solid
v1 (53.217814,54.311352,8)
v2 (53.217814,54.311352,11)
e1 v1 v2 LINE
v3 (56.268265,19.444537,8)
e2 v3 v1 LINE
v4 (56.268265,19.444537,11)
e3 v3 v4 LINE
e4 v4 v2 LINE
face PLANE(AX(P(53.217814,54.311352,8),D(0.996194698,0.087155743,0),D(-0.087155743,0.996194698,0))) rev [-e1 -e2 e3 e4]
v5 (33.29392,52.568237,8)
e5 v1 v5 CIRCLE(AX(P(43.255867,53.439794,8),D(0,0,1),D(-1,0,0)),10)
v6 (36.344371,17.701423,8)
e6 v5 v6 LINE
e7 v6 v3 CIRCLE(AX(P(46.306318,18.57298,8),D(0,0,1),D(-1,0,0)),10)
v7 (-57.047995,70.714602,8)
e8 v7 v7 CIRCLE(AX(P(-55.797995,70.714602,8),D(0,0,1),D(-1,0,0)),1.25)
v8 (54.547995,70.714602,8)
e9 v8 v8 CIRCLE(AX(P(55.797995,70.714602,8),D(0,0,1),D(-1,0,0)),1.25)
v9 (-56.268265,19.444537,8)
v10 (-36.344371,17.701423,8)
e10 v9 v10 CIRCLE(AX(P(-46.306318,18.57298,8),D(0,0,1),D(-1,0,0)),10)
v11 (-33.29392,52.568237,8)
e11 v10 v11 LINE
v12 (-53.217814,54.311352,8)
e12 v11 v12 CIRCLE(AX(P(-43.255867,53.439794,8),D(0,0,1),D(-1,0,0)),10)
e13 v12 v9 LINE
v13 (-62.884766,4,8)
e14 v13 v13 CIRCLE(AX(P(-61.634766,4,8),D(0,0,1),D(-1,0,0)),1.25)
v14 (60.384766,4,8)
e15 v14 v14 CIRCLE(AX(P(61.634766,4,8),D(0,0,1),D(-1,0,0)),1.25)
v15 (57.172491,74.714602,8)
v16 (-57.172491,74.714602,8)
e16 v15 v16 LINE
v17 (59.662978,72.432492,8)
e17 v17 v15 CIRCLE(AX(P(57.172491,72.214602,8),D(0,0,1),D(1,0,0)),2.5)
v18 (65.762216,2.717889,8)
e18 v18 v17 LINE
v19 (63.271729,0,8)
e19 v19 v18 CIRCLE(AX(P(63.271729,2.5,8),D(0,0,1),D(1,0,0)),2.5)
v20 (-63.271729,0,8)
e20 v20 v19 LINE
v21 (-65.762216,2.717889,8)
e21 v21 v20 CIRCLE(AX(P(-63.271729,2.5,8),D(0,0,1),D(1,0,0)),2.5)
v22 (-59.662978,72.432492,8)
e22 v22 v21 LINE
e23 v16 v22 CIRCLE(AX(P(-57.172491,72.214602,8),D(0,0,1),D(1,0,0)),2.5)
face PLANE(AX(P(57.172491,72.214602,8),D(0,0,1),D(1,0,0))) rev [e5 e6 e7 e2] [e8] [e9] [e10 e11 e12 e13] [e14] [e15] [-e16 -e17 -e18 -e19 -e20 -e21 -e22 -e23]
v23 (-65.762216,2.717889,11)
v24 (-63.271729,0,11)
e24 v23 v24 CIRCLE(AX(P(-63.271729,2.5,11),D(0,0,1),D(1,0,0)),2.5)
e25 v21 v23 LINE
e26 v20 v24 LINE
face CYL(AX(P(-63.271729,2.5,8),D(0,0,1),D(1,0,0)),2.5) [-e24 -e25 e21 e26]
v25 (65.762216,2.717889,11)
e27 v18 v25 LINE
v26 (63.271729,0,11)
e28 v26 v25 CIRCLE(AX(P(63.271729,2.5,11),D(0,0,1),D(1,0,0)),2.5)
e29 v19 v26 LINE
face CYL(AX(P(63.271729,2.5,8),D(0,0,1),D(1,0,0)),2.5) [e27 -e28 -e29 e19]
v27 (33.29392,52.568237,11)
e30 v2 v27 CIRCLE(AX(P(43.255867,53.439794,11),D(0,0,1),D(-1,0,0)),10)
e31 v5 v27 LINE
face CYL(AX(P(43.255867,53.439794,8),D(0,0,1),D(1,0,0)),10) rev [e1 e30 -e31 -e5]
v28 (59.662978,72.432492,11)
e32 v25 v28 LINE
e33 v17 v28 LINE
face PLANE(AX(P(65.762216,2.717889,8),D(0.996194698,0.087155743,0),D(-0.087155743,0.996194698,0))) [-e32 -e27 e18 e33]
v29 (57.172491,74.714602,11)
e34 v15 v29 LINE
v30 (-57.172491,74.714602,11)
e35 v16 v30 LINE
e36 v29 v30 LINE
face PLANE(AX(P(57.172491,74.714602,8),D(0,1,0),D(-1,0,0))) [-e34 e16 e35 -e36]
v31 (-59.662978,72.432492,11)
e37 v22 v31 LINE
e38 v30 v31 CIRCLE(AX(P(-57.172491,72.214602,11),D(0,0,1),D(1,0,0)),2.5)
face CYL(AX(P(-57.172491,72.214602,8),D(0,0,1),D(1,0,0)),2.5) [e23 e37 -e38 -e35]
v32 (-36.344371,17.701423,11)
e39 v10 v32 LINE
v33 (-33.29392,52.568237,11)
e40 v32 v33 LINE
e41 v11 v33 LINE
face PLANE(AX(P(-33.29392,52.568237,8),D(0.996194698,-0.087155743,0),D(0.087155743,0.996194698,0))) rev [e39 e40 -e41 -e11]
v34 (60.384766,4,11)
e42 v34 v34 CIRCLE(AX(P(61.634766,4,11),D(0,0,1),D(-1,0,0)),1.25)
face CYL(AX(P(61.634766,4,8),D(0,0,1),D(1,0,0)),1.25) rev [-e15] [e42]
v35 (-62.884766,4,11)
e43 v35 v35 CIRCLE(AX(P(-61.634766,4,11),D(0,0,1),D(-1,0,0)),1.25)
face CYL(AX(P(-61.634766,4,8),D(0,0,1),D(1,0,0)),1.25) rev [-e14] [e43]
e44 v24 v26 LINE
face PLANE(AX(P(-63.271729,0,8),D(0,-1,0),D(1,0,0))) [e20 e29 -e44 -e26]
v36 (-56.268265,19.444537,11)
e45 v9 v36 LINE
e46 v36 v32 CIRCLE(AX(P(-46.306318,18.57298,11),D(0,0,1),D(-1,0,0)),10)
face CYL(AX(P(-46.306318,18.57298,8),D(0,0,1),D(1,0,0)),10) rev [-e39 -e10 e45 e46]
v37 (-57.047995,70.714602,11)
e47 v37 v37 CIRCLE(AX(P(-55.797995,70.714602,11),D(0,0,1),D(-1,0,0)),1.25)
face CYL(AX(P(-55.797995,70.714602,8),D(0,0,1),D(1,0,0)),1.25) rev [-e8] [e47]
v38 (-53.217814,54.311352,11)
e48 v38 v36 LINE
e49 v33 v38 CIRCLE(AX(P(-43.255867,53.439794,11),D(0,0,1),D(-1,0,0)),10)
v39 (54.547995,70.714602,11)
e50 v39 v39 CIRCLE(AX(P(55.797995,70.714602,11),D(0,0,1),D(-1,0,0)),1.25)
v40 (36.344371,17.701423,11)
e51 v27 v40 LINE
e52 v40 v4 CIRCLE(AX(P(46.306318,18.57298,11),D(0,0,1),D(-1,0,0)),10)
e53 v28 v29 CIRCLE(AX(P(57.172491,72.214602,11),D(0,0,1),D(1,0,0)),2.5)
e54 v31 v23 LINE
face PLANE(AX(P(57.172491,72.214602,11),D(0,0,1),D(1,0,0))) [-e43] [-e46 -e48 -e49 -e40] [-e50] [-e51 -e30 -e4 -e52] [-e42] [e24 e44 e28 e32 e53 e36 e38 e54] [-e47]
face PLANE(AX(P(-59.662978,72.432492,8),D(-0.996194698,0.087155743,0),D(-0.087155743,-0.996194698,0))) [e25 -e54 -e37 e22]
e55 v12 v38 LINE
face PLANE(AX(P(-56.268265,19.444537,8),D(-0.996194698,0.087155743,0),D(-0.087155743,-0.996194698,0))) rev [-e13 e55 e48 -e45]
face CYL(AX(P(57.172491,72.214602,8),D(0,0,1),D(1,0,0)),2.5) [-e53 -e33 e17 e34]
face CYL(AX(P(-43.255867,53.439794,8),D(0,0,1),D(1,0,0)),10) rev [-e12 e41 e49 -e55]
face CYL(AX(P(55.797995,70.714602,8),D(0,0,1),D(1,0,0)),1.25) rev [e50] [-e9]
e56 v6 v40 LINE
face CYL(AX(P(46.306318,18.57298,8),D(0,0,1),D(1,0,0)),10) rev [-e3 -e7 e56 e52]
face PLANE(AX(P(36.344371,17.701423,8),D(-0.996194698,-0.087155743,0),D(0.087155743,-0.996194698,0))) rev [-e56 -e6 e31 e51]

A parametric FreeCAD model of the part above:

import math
import FreeCAD as App
import Part
import Sketcher
from FreeCAD import Vector
Q = App.Units.Quantity

doc = App.newDocument("Part")
body = doc.addObject("PartDesign::Body", "Body")

# Sketch on XY plane
sketch1 = body.newObject("Sketcher::SketchObject", "Sketch")
sketch1.AttachmentSupport = (doc.getObject("XY_Plane"), [""])
sketch1.MapMode = "FlatFace"
sketch1.AttachmentOffset = App.Placement(Vector(0, 0, 11), App.Rotation())
sketch1.addGeometry([
    Part.LineSegment(Vector(57.2, 74.7, 0), Vector(-57.2, 74.7, 0)),  # 0
    Part.ArcOfCircle(Part.Circle(Vector(-57.2, 72.2, 0), Vector(0, 0, 1), 2.5), math.radians(90), math.radians(175)),  # 1
    Part.LineSegment(Vector(-59.7, 72.4, 0), Vector(-65.8, 2.7, 0)),  # 2
    Part.ArcOfCircle(Part.Circle(Vector(-63.3, 2.5, 0), Vector(0, 0, 1), 2.5), math.radians(175), math.radians(270)),  # 3
    Part.LineSegment(Vector(-63.3, 0, 0), Vector(63.3, 0, 0)),  # 4
    Part.ArcOfCircle(Part.Circle(Vector(63.3, 2.5, 0), Vector(0, 0, 1), 2.5), math.radians(-90), math.radians(5)),  # 5
    Part.LineSegment(Vector(65.8, 2.7, 0), Vector(59.7, 72.4, 0)),  # 6
    Part.ArcOfCircle(Part.Circle(Vector(57.2, 72.2, 0), Vector(0, 0, 1), 2.5), math.radians(5), math.radians(90)),  # 7
    Part.Circle(Vector(-61.6, 4, 0), Vector(0, 0, 1), 1.2),  # 8
    Part.ArcOfCircle(Part.Circle(Vector(-43.3, 53.4, 0), Vector(0, 0, 1), 10), math.radians(-5), math.radians(175)),  # 9
    Part.LineSegment(Vector(-33.3, 52.6, 0), Vector(-36.3, 17.7, 0)),  # 10
    Part.ArcOfCircle(Part.Circle(Vector(-46.3, 18.6, 0), Vector(0, 0, 1), 10), math.radians(175), math.radians(355)),  # 11
    Part.LineSegment(Vector(-56.3, 19.4, 0), Vector(-53.2, 54.3, 0)),  # 12
    Part.Circle(Vector(61.6, 4, 0), Vector(0, 0, 1), 1.2),  # 13
    Part.ArcOfCircle(Part.Circle(Vector(43.3, 53.4, 0), Vector(0, 0, 1), 10), math.radians(5), math.radians(185)),  # 14
    Part.LineSegment(Vector(53.2, 54.3, 0), Vector(56.3, 19.4, 0)),  # 15
    Part.ArcOfCircle(Part.Circle(Vector(46.3, 18.6, 0), Vector(0, 0, 1), 10), math.radians(-175), math.radians(5)),  # 16
    Part.LineSegment(Vector(36.3, 17.7, 0), Vector(33.3, 52.6, 0)),  # 17
    Part.Circle(Vector(-55.8, 70.7, 0), Vector(0, 0, 1), 1.2),  # 18
    Part.Circle(Vector(55.8, 70.7, 0), Vector(0, 0, 1), 1.2),  # 19
], False)
sketch1.addConstraint([
    Sketcher.Constraint("Tangent", 0, 2, 1, 1),
    Sketcher.Constraint("Tangent", 1, 2, 2, 1),
    Sketcher.Constraint("Tangent", 2, 2, 3, 1),
    Sketcher.Constraint("Tangent", 3, 2, 4, 1),
    Sketcher.Constraint("Tangent", 4, 2, 5, 1),
    Sketcher.Constraint("Tangent", 5, 2, 6, 1),
    Sketcher.Constraint("Tangent", 6, 2, 7, 1),
    Sketcher.Constraint("Tangent", 7, 2, 0, 1),
    Sketcher.Constraint("Tangent", 9, 1, 10, 1),
    Sketcher.Constraint("Tangent", 10, 2, 11, 2),
    Sketcher.Constraint("Tangent", 11, 1, 12, 1),
    Sketcher.Constraint("Tangent", 12, 2, 9, 2),
    Sketcher.Constraint("Tangent", 14, 1, 15, 1),
    Sketcher.Constraint("Tangent", 15, 2, 16, 2),
    Sketcher.Constraint("Tangent", 16, 1, 17, 1),
    Sketcher.Constraint("Tangent", 17, 2, 14, 2),
    Sketcher.Constraint("Horizontal", 0),
    Sketcher.Constraint("Horizontal", 4),
    Sketcher.Constraint("Equal", 1, 3),
    Sketcher.Constraint("Equal", 3, 5),
    Sketcher.Constraint("Equal", 5, 7),
    Sketcher.Constraint("Equal", 9, 11),
    Sketcher.Constraint("Equal", 8, 13),
    Sketcher.Constraint("Equal", 11, 14),
    Sketcher.Constraint("Equal", 14, 16),
    Sketcher.Constraint("Equal", 13, 18),
    Sketcher.Constraint("Equal", 18, 19),
    Sketcher.Constraint("Symmetric", 3, 2, 4, 2, -1, 1),
    Sketcher.Constraint("Symmetric", 8, 3, 13, 3, -2),
    Sketcher.Constraint("Symmetric", 9, 3, 14, 3, -2),
    Sketcher.Constraint("Symmetric", 11, 3, 16, 3, -2),
    Sketcher.Constraint("Symmetric", 18, 3, 19, 3, -2),
    Sketcher.Constraint("Parallel", 2, 10),
    Sketcher.Constraint("Parallel", 6, 15),
    Sketcher.Constraint("Radius", 9, 10.0),
    Sketcher.Constraint("Diameter", 8, 2.5),
    Sketcher.Constraint("Radius", 1, 2.5),
    Sketcher.Constraint("Angle", 2, Q("-95 deg")),
    Sketcher.Constraint("Distance", 10, 35.0),
    Sketcher.Constraint("DistanceY", -1, 1, 8, 3, 4.0),
    Sketcher.Constraint("DistanceY", 18, 3, 0, 2, 4.0),
    Sketcher.Constraint("Distance", 2, 69.980901),
    Sketcher.Constraint("DistanceX", 8, 3, 9, 3, 18.378899),
    Sketcher.Constraint("DistanceX", 0, 2, 0, 1, 114.344983),
    Sketcher.Constraint("DistanceY", -1, 1, 11, 3, 18.57298),
    Sketcher.Constraint("DistanceX", 9, 1, -1, 1, 33.29392),
    Sketcher.Constraint("DistanceX", 8, 3, 18, 3, 5.836771),
])
pad1 = body.newObject("PartDesign::Pad", "Pad")
pad1.Profile = sketch1
pad1.Length = 3
pad1.Reversed = True

doc.recompute()
